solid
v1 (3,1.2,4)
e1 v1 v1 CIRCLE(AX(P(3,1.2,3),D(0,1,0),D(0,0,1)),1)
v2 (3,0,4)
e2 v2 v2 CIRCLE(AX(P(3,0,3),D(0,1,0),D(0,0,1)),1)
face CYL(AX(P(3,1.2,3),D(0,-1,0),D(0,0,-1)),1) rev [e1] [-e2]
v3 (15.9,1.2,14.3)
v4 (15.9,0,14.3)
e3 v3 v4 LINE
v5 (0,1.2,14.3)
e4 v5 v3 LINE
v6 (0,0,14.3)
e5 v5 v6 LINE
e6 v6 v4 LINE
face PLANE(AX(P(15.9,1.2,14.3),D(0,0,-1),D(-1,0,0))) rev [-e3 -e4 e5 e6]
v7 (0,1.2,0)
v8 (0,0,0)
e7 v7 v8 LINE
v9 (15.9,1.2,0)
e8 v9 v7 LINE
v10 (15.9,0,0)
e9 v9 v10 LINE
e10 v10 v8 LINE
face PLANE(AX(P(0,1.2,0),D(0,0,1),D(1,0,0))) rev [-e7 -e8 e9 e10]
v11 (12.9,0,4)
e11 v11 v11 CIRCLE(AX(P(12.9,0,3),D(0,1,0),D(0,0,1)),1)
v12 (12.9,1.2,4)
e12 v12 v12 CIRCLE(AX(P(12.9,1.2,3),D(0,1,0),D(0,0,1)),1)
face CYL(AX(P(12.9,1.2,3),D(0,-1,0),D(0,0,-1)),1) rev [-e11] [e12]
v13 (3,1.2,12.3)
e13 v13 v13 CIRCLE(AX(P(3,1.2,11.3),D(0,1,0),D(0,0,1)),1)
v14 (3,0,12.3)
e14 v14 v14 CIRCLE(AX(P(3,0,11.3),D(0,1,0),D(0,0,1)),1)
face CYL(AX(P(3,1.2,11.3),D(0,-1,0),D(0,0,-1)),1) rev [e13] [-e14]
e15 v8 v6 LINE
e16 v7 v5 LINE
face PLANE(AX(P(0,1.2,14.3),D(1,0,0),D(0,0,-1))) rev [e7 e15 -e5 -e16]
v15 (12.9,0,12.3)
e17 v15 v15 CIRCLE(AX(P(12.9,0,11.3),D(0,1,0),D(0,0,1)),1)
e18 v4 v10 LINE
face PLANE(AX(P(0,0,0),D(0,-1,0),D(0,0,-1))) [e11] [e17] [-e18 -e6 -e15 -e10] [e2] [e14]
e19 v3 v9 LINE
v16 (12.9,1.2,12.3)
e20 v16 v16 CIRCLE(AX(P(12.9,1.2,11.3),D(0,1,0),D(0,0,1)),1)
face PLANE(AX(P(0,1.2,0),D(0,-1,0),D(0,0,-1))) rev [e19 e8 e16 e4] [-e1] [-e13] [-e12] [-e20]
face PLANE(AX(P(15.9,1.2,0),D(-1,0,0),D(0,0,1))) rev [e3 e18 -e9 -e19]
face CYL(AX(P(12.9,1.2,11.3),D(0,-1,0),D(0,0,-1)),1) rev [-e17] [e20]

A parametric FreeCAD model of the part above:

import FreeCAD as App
import Part
import Sketcher

doc = App.newDocument("Part")
params = doc.addObject("Spreadsheet::Sheet", "Params")
for row, (alias, value) in enumerate([
    ("sketch1_diameter", "2 mm"),
    ("sketch1_width", "15.9 mm"),
    ("sketch1_height", "14.3 mm"),
    ("pad1_length", "1.2 mm"),
], start=1):
    params.set(f"A{row}", alias)
    params.set(f"B{row}", "=" + value)
    params.setAlias(f"B{row}", alias)

body = doc.addObject("PartDesign::Body", "Body")

sketch1 = body.newObject("Sketcher::SketchObject", "Sketch")
sketch1.AttachmentSupport = (doc.getObject("XZ_Plane"), [""])
sketch1.MapMode = "FlatFace"
sketch1.addGeometry(Part.LineSegment(App.Vector(0, 0, 0), App.Vector(0, 14.3, 0)), False)
sketch1.addGeometry(Part.LineSegment(App.Vector(0, 14.3, 0), App.Vector(15.9, 14.3, 0)), False)
sketch1.addGeometry(Part.LineSegment(App.Vector(15.9, 14.3, 0), App.Vector(15.9, 0, 0)), False)
sketch1.addGeometry(Part.LineSegment(App.Vector(15.9, 0, 0), App.Vector(0, 0, 0)), False)
sketch1.addGeometry(Part.Circle(App.Vector(3, 11.3, 0), App.Vector(0, 0, 1), 1), False)
sketch1.addGeometry(Part.Circle(App.Vector(12.9, 11.3, 0), App.Vector(0, 0, 1), 1), False)
sketch1.addGeometry(Part.Circle(App.Vector(3, 3, 0), App.Vector(0, 0, 1), 1), False)
sketch1.addGeometry(Part.Circle(App.Vector(12.9, 3, 0), App.Vector(0, 0, 1), 1), False)
sketch1.addConstraint(Sketcher.Constraint("Coincident", 0, 2, 1, 1))
sketch1.addConstraint(Sketcher.Constraint("Coincident", 1, 2, 2, 1))
sketch1.addConstraint(Sketcher.Constraint("Coincident", 2, 2, 3, 1))
sketch1.addConstraint(Sketcher.Constraint("Coincident", 3, 2, 0, 1))
sketch1.addConstraint(Sketcher.Constraint("Vertical", 0))
sketch1.addConstraint(Sketcher.Constraint("Horizontal", 1))
sketch1.addConstraint(Sketcher.Constraint("Vertical", 2))
sketch1.addConstraint(Sketcher.Constraint("Horizontal", 3))
sketch1.addConstraint(Sketcher.Constraint("Coincident", 3, 2, -1, 1))
sketch1.addConstraint(Sketcher.Constraint("Equal", 4, 5))
sketch1.addConstraint(Sketcher.Constraint("Equal", 5, 6))
sketch1.addConstraint(Sketcher.Constraint("Equal", 6, 7))
sketch1.addConstraint(Sketcher.Constraint("Horizontal", 4, 3, 5, 3))
sketch1.addConstraint(Sketcher.Constraint("Horizontal", 6, 3, 7, 3))
sketch1.addConstraint(Sketcher.Constraint("Vertical", 4, 3, 6, 3))
sketch1.addConstraint(Sketcher.Constraint("Vertical", 5, 3, 7, 3))
sketch1.addConstraint(Sketcher.Constraint("Diameter", 4, 2.0))
sketch1.addConstraint(Sketcher.Constraint("DistanceX", 1, 1, 1, 2, 15.9))
sketch1.addConstraint(Sketcher.Constraint("DistanceY", 0, 1, 0, 2, 14.3))
sketch1.addConstraint(Sketcher.Constraint("DistanceX", -1, 1, 4, 3, 3.0))
sketch1.addConstraint(Sketcher.Constraint("DistanceY", -1, 1, 6, 3, 3.0))
sketch1.addConstraint(Sketcher.Constraint("DistanceY", 4, 3, 0, 2, 3.0))
sketch1.addConstraint(Sketcher.Constraint("DistanceX", 5, 3, 1, 2, 3.0))
sketch1.setExpression("Constraints[16]", "Params.sketch1_diameter")
sketch1.setExpression("Constraints[17]", "Params.sketch1_width")
sketch1.setExpression("Constraints[18]", "Params.sketch1_height")
pad1 = body.newObject("PartDesign::Pad", "Pad")
pad1.Profile = sketch1
pad1.setExpression("Length", "Params.pad1_length")
pad1.Reversed = True

doc.recompute()
